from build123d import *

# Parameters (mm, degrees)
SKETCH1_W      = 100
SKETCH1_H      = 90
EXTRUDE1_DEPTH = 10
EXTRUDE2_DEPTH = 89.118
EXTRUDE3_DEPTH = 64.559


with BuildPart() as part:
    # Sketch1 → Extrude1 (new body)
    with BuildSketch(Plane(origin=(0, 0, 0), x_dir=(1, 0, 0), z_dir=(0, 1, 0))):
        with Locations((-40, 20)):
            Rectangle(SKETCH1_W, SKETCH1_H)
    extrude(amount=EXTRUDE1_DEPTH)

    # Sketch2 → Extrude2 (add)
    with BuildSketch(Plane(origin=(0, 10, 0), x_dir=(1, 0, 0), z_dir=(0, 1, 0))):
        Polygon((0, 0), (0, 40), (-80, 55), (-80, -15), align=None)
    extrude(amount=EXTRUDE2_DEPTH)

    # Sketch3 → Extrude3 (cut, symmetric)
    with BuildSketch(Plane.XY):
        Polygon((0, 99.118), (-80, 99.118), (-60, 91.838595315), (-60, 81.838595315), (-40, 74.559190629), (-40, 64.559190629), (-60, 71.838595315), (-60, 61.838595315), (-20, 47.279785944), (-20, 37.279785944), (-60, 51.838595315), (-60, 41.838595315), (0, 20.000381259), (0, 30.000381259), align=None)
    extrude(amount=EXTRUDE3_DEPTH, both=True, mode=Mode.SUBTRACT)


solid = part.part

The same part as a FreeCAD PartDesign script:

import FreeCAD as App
import Part
import Sketcher
from FreeCAD import Vector
Q = App.Units.Quantity


def add_polygon(sketch, points):
    """Adds a closed chain of lines whose ends are joined by coincident constraints."""
    first, n = sketch.GeometryCount, len(points)
    for a, b in zip(points, points[1:] + points[:1]):
        sketch.addGeometry(Part.LineSegment(App.Vector(*a, 0), App.Vector(*b, 0)), False)
    for i in range(n):
        sketch.addConstraint(Sketcher.Constraint("Coincident", first + i, 2, first + (i + 1) % n, 1))

doc = App.newDocument("Part")
body = doc.addObject("PartDesign::Body", "Body")

# Sketch on XZ plane
sketch1 = body.newObject("Sketcher::SketchObject", "Sketch")
sketch1.AttachmentSupport = (doc.getObject("XZ_Plane"), [""])
sketch1.MapMode = "FlatFace"
add_polygon(sketch1, [(-90, -65), (-90, 25), (10, 25), (10, -65)])  # lines 0-3
sketch1.addConstraint([
    Sketcher.Constraint("Vertical", 0),
    Sketcher.Constraint("Horizontal", 1),
    Sketcher.Constraint("Vertical", 2),
    Sketcher.Constraint("Horizontal", 3),
    Sketcher.Constraint("DistanceX", 1, 1, 1, 2, 100.0),
    Sketcher.Constraint("DistanceY", 0, 1, 0, 2, 90.0),
    Sketcher.Constraint("DistanceX", 0, 2, -1, 1, 90.0),
    Sketcher.Constraint("DistanceY", -1, 1, 0, 2, 25.0),
])
pad1 = body.newObject("PartDesign::Pad", "Pad")
pad1.Profile = sketch1
pad1.Length = 10
pad1.Reversed = True

# Sketch on XZ plane
sketch2 = body.newObject("Sketcher::SketchObject", "Sketch001")
sketch2.AttachmentSupport = (doc.getObject("XZ_Plane"), [""])
sketch2.MapMode = "FlatFace"
sketch2.AttachmentOffset = App.Placement(Vector(0, 0, -10), App.Rotation())
add_polygon(sketch2, [(0, 0), (0, -40), (-80, -55), (-80, 15)])  # lines 0-3
sketch2.addConstraint([
    Sketcher.Constraint("Vertical", 0),
    Sketcher.Constraint("Vertical", 2),
    Sketcher.Constraint("Coincident", 3, 2, -1, 1),
    Sketcher.Constraint("Equal", 1, 3),
    Sketcher.Constraint("DistanceY", 0, 2, 0, 1, 40.0),
    Sketcher.Constraint("DistanceY", 2, 1, 2, 2, 70.0),
    Sketcher.Constraint("DistanceX", 1, 2, -1, 1, 80.0),
])
pad2 = body.newObject("PartDesign::Pad", "Pad001")
pad2.Profile = sketch2
pad2.Length = 89.118
pad2.Reversed = True

# Sketch on XY plane
sketch3 = body.newObject("Sketcher::SketchObject", "Sketch002")
sketch3.AttachmentSupport = (doc.getObject("XY_Plane"), [""])
sketch3.MapMode = "FlatFace"
add_polygon(sketch3, [(0, 99), (-80, 99), (-60, 92), (-60, 82), (-40, 75), (-40, 65), (-60, 72), (-60, 62), (-20, 47), (-20, 37), (-60, 52), (-60, 42), (0, 20)])  # lines 0-12
sketch3.addConstraint([
    Sketcher.Constraint("Horizontal", 0),
    Sketcher.Constraint("Vertical", 2),
    Sketcher.Constraint("Vertical", 4),
    Sketcher.Constraint("Vertical", 6),
    Sketcher.Constraint("Vertical", 8),
    Sketcher.Constraint("Vertical", 10),
    Sketcher.Constraint("Vertical", 12),
    Sketcher.Constraint("PointOnObject", 11, 2, -2),
    Sketcher.Constraint("Parallel", 1, 3),
    Sketcher.Constraint("Parallel", 3, 5),
    Sketcher.Constraint("Parallel", 5, 7),
    Sketcher.Constraint("Parallel", 7, 9),
    Sketcher.Constraint("Parallel", 9, 11),
    Sketcher.Constraint("Vertical", 2, 2, 5, 2),
    Sketcher.Constraint("Vertical", 6, 2, 9, 2),
    Sketcher.Constraint("Equal", 2, 4),
    Sketcher.Constraint("Equal", 4, 6),
    Sketcher.Constraint("Equal", 6, 8),
    Sketcher.Constraint("Equal", 8, 10),
    Sketcher.Constraint("Equal", 1, 3),
    Sketcher.Constraint("DistanceX", 0, 2, 0, 1, 80.0),
    Sketcher.Constraint("DistanceY", 2, 2, 2, 1, 10.0),
    Sketcher.Constraint("Angle", 1, Q("-20 deg")),
    Sketcher.Constraint("DistanceX", 1, 2, -1, 1, 60.0),
    Sketcher.Constraint("DistanceX", 7, 2, -1, 1, 20.0),
    Sketcher.Constraint("DistanceY", -1, 1, 0, 2, 99.118),
])
pocket1 = body.newObject("PartDesign::Pocket", "Pocket")
pocket1.Profile = sketch3
pocket1.Length = 129.118
pocket1.Midplane = True

doc.recompute()
